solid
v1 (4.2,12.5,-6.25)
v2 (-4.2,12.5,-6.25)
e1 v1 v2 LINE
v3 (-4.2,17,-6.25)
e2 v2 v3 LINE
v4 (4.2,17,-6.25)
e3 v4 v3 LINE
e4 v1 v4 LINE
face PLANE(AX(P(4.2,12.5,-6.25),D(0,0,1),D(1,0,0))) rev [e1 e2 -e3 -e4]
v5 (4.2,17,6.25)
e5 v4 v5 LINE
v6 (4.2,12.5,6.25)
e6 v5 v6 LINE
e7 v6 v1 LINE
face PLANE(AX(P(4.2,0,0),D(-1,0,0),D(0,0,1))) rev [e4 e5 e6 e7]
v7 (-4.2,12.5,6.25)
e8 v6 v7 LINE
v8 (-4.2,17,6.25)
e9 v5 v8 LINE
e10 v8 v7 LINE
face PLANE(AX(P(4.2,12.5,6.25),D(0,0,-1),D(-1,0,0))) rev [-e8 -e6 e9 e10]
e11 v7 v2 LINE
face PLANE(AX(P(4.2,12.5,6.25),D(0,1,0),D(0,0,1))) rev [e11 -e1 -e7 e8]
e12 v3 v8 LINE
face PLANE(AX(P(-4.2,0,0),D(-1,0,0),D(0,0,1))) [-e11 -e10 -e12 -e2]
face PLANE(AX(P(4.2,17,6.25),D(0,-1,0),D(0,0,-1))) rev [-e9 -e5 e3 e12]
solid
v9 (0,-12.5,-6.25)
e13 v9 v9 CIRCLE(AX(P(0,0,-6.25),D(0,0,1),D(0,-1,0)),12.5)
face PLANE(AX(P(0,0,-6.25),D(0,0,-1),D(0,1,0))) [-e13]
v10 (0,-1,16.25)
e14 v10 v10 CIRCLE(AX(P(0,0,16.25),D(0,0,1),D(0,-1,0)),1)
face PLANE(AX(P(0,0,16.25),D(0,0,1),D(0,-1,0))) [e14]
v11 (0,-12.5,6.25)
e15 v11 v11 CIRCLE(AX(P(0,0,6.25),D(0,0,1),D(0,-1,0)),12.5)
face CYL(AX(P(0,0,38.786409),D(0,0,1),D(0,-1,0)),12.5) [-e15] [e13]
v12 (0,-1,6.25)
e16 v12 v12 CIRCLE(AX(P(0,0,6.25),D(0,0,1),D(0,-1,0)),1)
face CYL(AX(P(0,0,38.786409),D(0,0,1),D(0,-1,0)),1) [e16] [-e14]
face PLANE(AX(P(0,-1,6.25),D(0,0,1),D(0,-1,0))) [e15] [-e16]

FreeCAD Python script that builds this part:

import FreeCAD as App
import Part
import Sketcher
from FreeCAD import Vector
Q = App.Units.Quantity


def add_polygon(sketch, points):
    """Adds a closed chain of lines whose ends are joined by coincident constraints."""
    first, n = sketch.GeometryCount, len(points)
    for a, b in zip(points, points[1:] + points[:1]):
        sketch.addGeometry(Part.LineSegment(App.Vector(*a, 0), App.Vector(*b, 0)), False)
    for i in range(n):
        sketch.addConstraint(Sketcher.Constraint("Coincident", first + i, 2, first + (i + 1) % n, 1))

doc = App.newDocument("Part")
body = doc.addObject("PartDesign::Body", "Body")

# Sketch on YZ plane
sketch1 = body.newObject("Sketcher::SketchObject", "Sketch")
sketch1.AttachmentSupport = (doc.getObject("YZ_Plane"), [""])
sketch1.MapMode = "FlatFace"
add_polygon(sketch1, [(0, -6.2), (0, 16.2), (-1, 16.2), (-1, 6.2), (-12.5, 6.2), (-12.5, -6.2)])  # lines 0-5
sketch1.addConstraint([
    Sketcher.Constraint("Vertical", 0),
    Sketcher.Constraint("Horizontal", 1),
    Sketcher.Constraint("Vertical", 2),
    Sketcher.Constraint("Horizontal", 3),
    Sketcher.Constraint("Vertical", 4),
    Sketcher.Constraint("Horizontal", 5),
    Sketcher.Constraint("PointOnObject", 0, 2, -2),
    Sketcher.Constraint("Equal", 5, 4),
    Sketcher.Constraint("DistanceX", 1, 2, 1, 1, Q("1 mm")),
    Sketcher.Constraint("DistanceY", 2, 2, 2, 1, Q("10 mm")),
    Sketcher.Constraint("DistanceX", 3, 2, 3, 1, Q("11.5 mm")),
    Sketcher.Constraint("DistanceY", -1, 1, 0, 2, Q("16.25 mm")),
])
revolution = body.newObject("PartDesign::Revolution", "Revolution")
revolution.Profile = sketch1
revolution.ReferenceAxis = (sketch1, ["V_Axis"])
revolution.Angle = 360
body2 = doc.addObject("PartDesign::Body", "Body001")

# Sketch on YZ plane
sketch2 = body2.newObject("Sketcher::SketchObject", "Sketch001")
sketch2.AttachmentSupport = (doc.getObject("YZ_Plane001"), [""])
sketch2.MapMode = "FlatFace"
add_polygon(sketch2, [(17, 6.2), (12.5, 6.2), (12.5, -6.2), (17, -6.2)])  # lines 0-3
sketch2.addConstraint([
    Sketcher.Constraint("Horizontal", 0),
    Sketcher.Constraint("Vertical", 1),
    Sketcher.Constraint("Horizontal", 2),
    Sketcher.Constraint("Vertical", 3),
    Sketcher.Constraint("DistanceX", 0, 2, 0, 1, Q("4.5 mm")),
    Sketcher.Constraint("DistanceY", 1, 2, 1, 1, Q("12.5 mm")),
    Sketcher.Constraint("DistanceX", -1, 1, 2, 2, Q("17 mm")),
    Sketcher.Constraint("DistanceY", -1, 1, 0, 2, Q("6.25 mm")),
])
pad1 = body2.newObject("PartDesign::Pad", "Pad")
pad1.Profile = sketch2
pad1.Length = 8.4
pad1.Midplane = True

doc.recompute()
